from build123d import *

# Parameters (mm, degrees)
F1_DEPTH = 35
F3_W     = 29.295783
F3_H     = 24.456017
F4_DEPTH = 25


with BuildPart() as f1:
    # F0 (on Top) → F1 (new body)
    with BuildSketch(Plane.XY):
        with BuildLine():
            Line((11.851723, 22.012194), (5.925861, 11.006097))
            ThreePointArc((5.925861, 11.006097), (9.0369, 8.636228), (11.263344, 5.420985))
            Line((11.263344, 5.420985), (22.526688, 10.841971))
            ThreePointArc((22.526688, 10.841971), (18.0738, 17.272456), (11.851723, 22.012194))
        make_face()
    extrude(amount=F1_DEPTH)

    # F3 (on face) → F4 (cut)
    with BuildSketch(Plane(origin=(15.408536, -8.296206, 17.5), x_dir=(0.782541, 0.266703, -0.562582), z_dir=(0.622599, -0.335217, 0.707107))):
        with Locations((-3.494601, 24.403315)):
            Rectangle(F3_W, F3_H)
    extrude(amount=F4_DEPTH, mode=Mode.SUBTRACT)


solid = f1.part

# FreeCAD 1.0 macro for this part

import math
import FreeCAD as App
import Part
import Sketcher
from FreeCAD import Vector
Q = App.Units.Quantity


def add_polygon(sketch, points):
    """Adds a closed chain of lines whose ends are joined by coincident constraints."""
    first, n = sketch.GeometryCount, len(points)
    for a, b in zip(points, points[1:] + points[:1]):
        sketch.addGeometry(Part.LineSegment(App.Vector(*a, 0), App.Vector(*b, 0)), False)
    for i in range(n):
        sketch.addConstraint(Sketcher.Constraint("Coincident", first + i, 2, first + (i + 1) % n, 1))

doc = App.newDocument("Part")
body = doc.addObject("PartDesign::Body", "Body")

sketch1 = body.newObject("Sketcher::SketchObject", "Sketch")
sketch1.AttachmentSupport = (doc.getObject("XY_Plane"), [""])
sketch1.MapMode = "FlatFace"
sketch1.addGeometry([
    Part.LineSegment(Vector(12, 22, 0), Vector(6, 11, 0)),
    Part.ArcOfCircle(Part.Circle(Vector(0, 0, 0), Vector(0, 0, 1), 13), math.radians(26), math.radians(62)),
    Part.LineSegment(Vector(11, 5, 0), Vector(23, 11, 0)),
    Part.ArcOfCircle(Part.Circle(Vector(0, 0, 0), Vector(0, 0, 1), 25), math.radians(26), math.radians(62)),
], False)
sketch1.addConstraint([
    Sketcher.Constraint("Coincident", 0, 2, 1, 2),
    Sketcher.Constraint("Coincident", 1, 1, 2, 1),
    Sketcher.Constraint("Coincident", 2, 2, 3, 1),
    Sketcher.Constraint("Coincident", 3, 2, 0, 1),
    Sketcher.Constraint("Coincident", 1, 3, -1, 1),
    Sketcher.Constraint("Equal", 0, 2),
    Sketcher.Constraint("Radius", 1, Q("12.500002 mm")),
    Sketcher.Constraint("Distance", 0, Q("12.5 mm")),
    Sketcher.Constraint("Radius", 3, Q("25.000013 mm")),
    Sketcher.Constraint("DistanceY", 1, 3, 0, 2, Q("11.006098 mm")),
    Sketcher.Constraint("DistanceX", -1, 1, 2, 2, Q("22.526688 mm")),
    Sketcher.Constraint("DistanceX", 0, 2, 3, 2, Q("5.925862 mm")),
    Sketcher.Constraint("DistanceX", 1, 1, 3, 2, Q("0.588379 mm")),
])
pad1 = body.newObject("PartDesign::Pad", "Pad")
pad1.Profile = sketch1
pad1.Length = 35

sketch2 = body.newObject("Sketcher::SketchObject", "Sketch001")
sketch2.Placement = App.Placement(Vector(15.408536, -8.296206, 17.5), App.Rotation(Vector(0.782541109, 0.266703143, -0.562582302), Vector(-0.000000508, 0.903603357, 0.428370137), Vector(0.622598919, -0.335216956, 0.707106908), "ZXY"))
add_polygon(sketch2, [(-18, 37), (-18, 12), (11, 12), (11, 37)])
sketch2.addConstraint([
    Sketcher.Constraint("Vertical", 0),
    Sketcher.Constraint("Horizontal", 1),
    Sketcher.Constraint("Vertical", 2),
    Sketcher.Constraint("Horizontal", 3),
    Sketcher.Constraint("DistanceX", 1, 1, 1, 2, Q("29.295783 mm")),
    Sketcher.Constraint("DistanceY", 0, 2, 0, 1, Q("24.456017 mm")),
    Sketcher.Constraint("DistanceX", -1, 1, 1, 2, Q("11.153291 mm")),
    Sketcher.Constraint("DistanceY", -1, 1, 0, 2, Q("12.175307 mm")),
])
pocket1 = body.newObject("PartDesign::Pocket", "Pocket")
pocket1.Profile = sketch2
pocket1.Length = 25
pocket1.Reversed = True

doc.recompute()
